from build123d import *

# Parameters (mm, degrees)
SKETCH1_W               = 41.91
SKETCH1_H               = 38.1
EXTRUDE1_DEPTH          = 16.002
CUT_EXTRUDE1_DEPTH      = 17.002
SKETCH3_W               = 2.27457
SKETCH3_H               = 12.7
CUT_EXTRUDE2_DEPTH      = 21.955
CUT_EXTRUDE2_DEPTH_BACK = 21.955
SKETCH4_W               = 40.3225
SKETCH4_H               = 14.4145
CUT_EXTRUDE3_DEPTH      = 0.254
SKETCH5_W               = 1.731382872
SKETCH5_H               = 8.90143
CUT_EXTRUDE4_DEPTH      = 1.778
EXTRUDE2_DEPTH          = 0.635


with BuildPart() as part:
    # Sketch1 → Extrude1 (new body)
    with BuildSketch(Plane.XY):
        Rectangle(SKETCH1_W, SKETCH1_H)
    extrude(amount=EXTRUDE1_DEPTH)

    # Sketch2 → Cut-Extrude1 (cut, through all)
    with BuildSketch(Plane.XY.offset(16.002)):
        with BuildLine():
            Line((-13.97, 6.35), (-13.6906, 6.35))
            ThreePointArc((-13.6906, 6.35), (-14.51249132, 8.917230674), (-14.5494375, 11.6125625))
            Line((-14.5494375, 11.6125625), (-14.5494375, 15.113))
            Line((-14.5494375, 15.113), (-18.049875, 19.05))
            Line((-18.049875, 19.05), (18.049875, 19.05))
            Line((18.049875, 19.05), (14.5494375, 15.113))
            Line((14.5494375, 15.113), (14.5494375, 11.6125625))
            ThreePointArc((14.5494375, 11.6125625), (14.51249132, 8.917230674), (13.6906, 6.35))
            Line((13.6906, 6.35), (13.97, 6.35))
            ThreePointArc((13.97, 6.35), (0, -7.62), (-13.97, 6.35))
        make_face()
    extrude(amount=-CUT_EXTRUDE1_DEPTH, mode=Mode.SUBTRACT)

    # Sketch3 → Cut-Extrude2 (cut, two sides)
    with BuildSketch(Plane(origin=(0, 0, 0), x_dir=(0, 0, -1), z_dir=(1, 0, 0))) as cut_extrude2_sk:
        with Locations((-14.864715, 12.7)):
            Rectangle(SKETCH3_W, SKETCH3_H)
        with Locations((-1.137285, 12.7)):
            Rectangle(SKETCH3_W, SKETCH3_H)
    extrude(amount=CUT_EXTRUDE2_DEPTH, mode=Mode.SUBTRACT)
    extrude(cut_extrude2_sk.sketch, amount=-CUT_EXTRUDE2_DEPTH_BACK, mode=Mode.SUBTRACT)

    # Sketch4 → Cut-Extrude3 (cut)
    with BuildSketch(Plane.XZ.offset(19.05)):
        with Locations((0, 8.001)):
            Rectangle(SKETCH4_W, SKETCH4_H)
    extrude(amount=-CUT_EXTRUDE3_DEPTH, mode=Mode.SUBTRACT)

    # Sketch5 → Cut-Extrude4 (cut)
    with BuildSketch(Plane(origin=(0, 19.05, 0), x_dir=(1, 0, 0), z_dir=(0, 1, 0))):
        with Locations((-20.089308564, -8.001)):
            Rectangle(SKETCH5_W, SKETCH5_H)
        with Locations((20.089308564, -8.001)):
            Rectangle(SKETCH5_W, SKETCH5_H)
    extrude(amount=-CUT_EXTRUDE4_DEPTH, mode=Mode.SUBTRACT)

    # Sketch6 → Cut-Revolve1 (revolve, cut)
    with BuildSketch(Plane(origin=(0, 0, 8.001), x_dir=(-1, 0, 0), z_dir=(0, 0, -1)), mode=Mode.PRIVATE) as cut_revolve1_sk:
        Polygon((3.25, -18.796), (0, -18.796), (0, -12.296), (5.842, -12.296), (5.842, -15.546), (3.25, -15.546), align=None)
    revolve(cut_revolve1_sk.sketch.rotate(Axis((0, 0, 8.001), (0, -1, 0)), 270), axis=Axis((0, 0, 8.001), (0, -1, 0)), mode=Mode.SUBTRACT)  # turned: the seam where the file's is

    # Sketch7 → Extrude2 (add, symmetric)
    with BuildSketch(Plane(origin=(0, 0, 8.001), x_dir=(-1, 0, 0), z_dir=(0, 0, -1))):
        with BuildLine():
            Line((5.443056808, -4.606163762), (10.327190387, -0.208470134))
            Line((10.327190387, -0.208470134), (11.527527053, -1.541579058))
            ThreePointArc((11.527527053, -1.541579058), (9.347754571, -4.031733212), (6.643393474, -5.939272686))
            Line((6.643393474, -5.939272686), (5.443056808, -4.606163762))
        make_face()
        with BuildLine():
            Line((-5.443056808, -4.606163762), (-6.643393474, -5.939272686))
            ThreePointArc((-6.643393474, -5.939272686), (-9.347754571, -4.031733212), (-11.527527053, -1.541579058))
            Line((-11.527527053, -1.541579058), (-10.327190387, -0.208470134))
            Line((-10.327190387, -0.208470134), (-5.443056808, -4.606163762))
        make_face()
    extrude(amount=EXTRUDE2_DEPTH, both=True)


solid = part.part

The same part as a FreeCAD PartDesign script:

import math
import FreeCAD as App
import Part
import Sketcher
from FreeCAD import Vector
Q = App.Units.Quantity

doc = App.newDocument("Part")
body = doc.addObject("PartDesign::Body", "Body")

sketch1 = body.newObject("Sketcher::SketchObject", "Sketch")
sketch1.AttachmentSupport = (doc.getObject("XY_Plane"), [""])
sketch1.MapMode = "FlatFace"
sketch1.addGeometry([
    Part.LineSegment(Vector(-21, 19, 0), Vector(-21, -19, 0)),
    Part.LineSegment(Vector(-21, -19, 0), Vector(21, -19, 0)),
    Part.LineSegment(Vector(21, -19, 0), Vector(21, 19, 0)),
    Part.LineSegment(Vector(21, 19, 0), Vector(-21, 19, 0)),
], False)
sketch1.addConstraint([
    Sketcher.Constraint("Coincident", 0, 2, 1, 1),
    Sketcher.Constraint("Coincident", 1, 2, 2, 1),
    Sketcher.Constraint("Coincident", 2, 2, 3, 1),
    Sketcher.Constraint("Coincident", 3, 2, 0, 1),
    Sketcher.Constraint("Vertical", 0),
    Sketcher.Constraint("Horizontal", 1),
    Sketcher.Constraint("Vertical", 2),
    Sketcher.Constraint("Horizontal", 3),
    Sketcher.Constraint("Symmetric", 0, 2, 2, 2, -1, 1),
    Sketcher.Constraint("DistanceY", 0, 2, 0, 1, Q("1.5 in")),
    Sketcher.Constraint("DistanceX", 1, 1, 1, 2, Q("1.65 in")),
])
pad1 = body.newObject("PartDesign::Pad", "Pad")
pad1.Profile = sketch1
pad1.Length = Q("0.63 in")

sketch2 = body.newObject("Sketcher::SketchObject", "Sketch001")
sketch2.AttachmentSupport = (doc.getObject("XY_Plane"), [""])
sketch2.MapMode = "FlatFace"
sketch2.AttachmentOffset = App.Placement(Vector(0, 0, 0.63 * 25.4), App.Rotation())
sketch2.addGeometry([
    Part.LineSegment(Vector(-13.69, 6.35, 0), Vector(-13.97, 6.35, 0)),
    Part.ArcOfCircle(Part.Circle(Vector(0, 6.35, 0), Vector(0, 0, 1), 13.97), math.radians(180), math.radians(360)),
    Part.LineSegment(Vector(13.97, 6.35, 0), Vector(13.69, 6.35, 0)),
    Part.ArcOfCircle(Part.Circle(Vector(5.5, 10.39, 0), Vector(0, 0, 1), 9.14), math.radians(-26), math.radians(8)),
    Part.LineSegment(Vector(14.55, 11.61, 0), Vector(14.55, 15.11, 0)),
    Part.LineSegment(Vector(14.55, 15.11, 0), Vector(18.05, 19.05, 0)),
    Part.LineSegment(Vector(18.05, 19.05, 0), Vector(-18.05, 19.05, 0)),
    Part.LineSegment(Vector(-18.05, 19.05, 0), Vector(-14.55, 15.11, 0)),
    Part.LineSegment(Vector(-14.55, 15.11, 0), Vector(-14.55, 11.61, 0)),
    Part.ArcOfCircle(Part.Circle(Vector(-5.5, 10.39, 0), Vector(0, 0, 1), 9.14), math.radians(172), math.radians(206)),
], False)
sketch2.addConstraint([
    Sketcher.Constraint("Coincident", 0, 2, 1, 1),
    Sketcher.Constraint("Coincident", 1, 2, 2, 1),
    Sketcher.Constraint("Coincident", 2, 2, 3, 1),
    Sketcher.Constraint("Coincident", 3, 2, 4, 1),
    Sketcher.Constraint("Coincident", 4, 2, 5, 1),
    Sketcher.Constraint("Coincident", 5, 2, 6, 1),
    Sketcher.Constraint("Coincident", 6, 2, 7, 1),
    Sketcher.Constraint("Coincident", 7, 2, 8, 1),
    Sketcher.Constraint("Coincident", 8, 2, 9, 1),
    Sketcher.Constraint("Coincident", 9, 2, 0, 1),
    Sketcher.Constraint("Horizontal", 0),
    Sketcher.Constraint("Horizontal", 2),
    Sketcher.Constraint("Vertical", 4),
    Sketcher.Constraint("Horizontal", 6),
    Sketcher.Constraint("Vertical", 8),
    Sketcher.Constraint("Equal", 3, 9),
    Sketcher.Constraint("Symmetric", 3, 3, 9, 3, -2),
    Sketcher.Constraint("Symmetric", 0, 2, 1, 2, -2),
    Sketcher.Constraint("Symmetric", 4, 2, 7, 2, -2),
    Sketcher.Constraint("Horizontal", 1, 3, 0, 2),
    Sketcher.Constraint("Equal", 5, 7),
    Sketcher.Constraint("Radius", 1, Q("0.55 in")),
    Sketcher.Constraint("DistanceY", 1, 2, 5, 2, Q("0.5 in")),
    Sketcher.Constraint("DistanceX", 0, 2, 0, 1, Q("0.011 in")),
    Sketcher.Constraint("DistanceY", -1, 1, 1, 3, Q("0.25 in")),
    Sketcher.Constraint("DistanceY", -1, 1, 4, 2, Q("0.595 in")),
    Sketcher.Constraint("Radius", 3, 9.136063),
    Sketcher.Constraint("DistanceX", 6, 2, 6, 1, 36.09975),
    Sketcher.Constraint("DistanceY", 4, 1, 4, 2, 3.500438),
    Sketcher.Constraint("DistanceX", 9, 3, 3, 2, 20.045151),
])
pocket1 = body.newObject("PartDesign::Pocket", "Pocket")
pocket1.Profile = sketch2
pocket1.Type = "ThroughAll"

sketch3 = body.newObject("Sketcher::SketchObject", "Sketch002")
sketch3.AttachmentSupport = (doc.getObject("YZ_Plane"), [""])
sketch3.MapMode = "FlatFace"
sketch3.addGeometry([
    Part.LineSegment(Vector(19.1, 16, 0), Vector(6.3, 16, 0)),
    Part.LineSegment(Vector(6.3, 16, 0), Vector(6.3, 13.7, 0)),
    Part.LineSegment(Vector(6.3, 13.7, 0), Vector(19.1, 13.7, 0)),
    Part.LineSegment(Vector(19.1, 13.7, 0), Vector(19.1, 16, 0)),
    Part.LineSegment(Vector(19.1, 2.3, 0), Vector(6.3, 2.3, 0)),
    Part.LineSegment(Vector(6.3, 2.3, 0), Vector(6.3, 0, 0)),
    Part.LineSegment(Vector(6.3, 0, 0), Vector(19.1, 0, 0)),
    Part.LineSegment(Vector(19.1, 0, 0), Vector(19.1, 2.3, 0)),
], False)
sketch3.addConstraint([
    Sketcher.Constraint("Coincident", 0, 2, 1, 1),
    Sketcher.Constraint("Coincident", 1, 2, 2, 1),
    Sketcher.Constraint("Coincident", 2, 2, 3, 1),
    Sketcher.Constraint("Coincident", 3, 2, 0, 1),
    Sketcher.Constraint("Coincident", 4, 2, 5, 1),
    Sketcher.Constraint("Coincident", 5, 2, 6, 1),
    Sketcher.Constraint("Coincident", 6, 2, 7, 1),
    Sketcher.Constraint("Coincident", 7, 2, 4, 1),
    Sketcher.Constraint("Horizontal", 0),
    Sketcher.Constraint("Vertical", 1),
    Sketcher.Constraint("Horizontal", 2),
    Sketcher.Constraint("Vertical", 3),
    Sketcher.Constraint("Horizontal", 4),
    Sketcher.Constraint("Vertical", 5),
    Sketcher.Constraint("Horizontal", 6),
    Sketcher.Constraint("Vertical", 7),
    Sketcher.Constraint("PointOnObject", 5, 2, -1),
    Sketcher.Constraint("Vertical", 1, 2, 4, 2),
    Sketcher.Constraint("Vertical", 3, 2, 6, 2),
    Sketcher.Constraint("Equal", 3, 5),
    Sketcher.Constraint("DistanceX", 0, 2, 0, 1, Q("0.5 in")),
    Sketcher.Constraint("DistanceX", -1, 1, 0, 2, Q("0.25 in")),
    Sketcher.Constraint("DistanceY", -1, 1, 0, 2, Q("0.63 in")),
    Sketcher.Constraint("DistanceY", 4, 2, 1, 2, Q("0.4509 in")),
])
pocket2 = body.newObject("PartDesign::Pocket", "Pocket001")
pocket2.Profile = sketch3
pocket2.Type = "ThroughAll"
pocket2.Midplane = True

sketch4 = body.newObject("Sketcher::SketchObject", "Sketch003")
sketch4.AttachmentSupport = (doc.getObject("XZ_Plane"), [""])
sketch4.MapMode = "FlatFace"
sketch4.AttachmentOffset = App.Placement(Vector(0, 0, 0.75 * 25.4), App.Rotation())
sketch4.addGeometry([
    Part.LineSegment(Vector(-20, 15, 0), Vector(-20, 1, 0)),
    Part.LineSegment(Vector(-20, 1, 0), Vector(20, 1, 0)),
    Part.LineSegment(Vector(20, 1, 0), Vector(20, 15, 0)),
    Part.LineSegment(Vector(20, 15, 0), Vector(-20, 15, 0)),
], False)
sketch4.addConstraint([
    Sketcher.Constraint("Coincident", 0, 2, 1, 1),
    Sketcher.Constraint("Coincident", 1, 2, 2, 1),
    Sketcher.Constraint("Coincident", 2, 2, 3, 1),
    Sketcher.Constraint("Coincident", 3, 2, 0, 1),
    Sketcher.Constraint("Vertical", 0),
    Sketcher.Constraint("Horizontal", 1),
    Sketcher.Constraint("Vertical", 2),
    Sketcher.Constraint("Horizontal", 3),
    Sketcher.Constraint("DistanceX", 1, 1, 1, 2, Q("1.5875 in")),
    Sketcher.Constraint("DistanceY", 0, 2, 0, 1, Q("0.5675 in")),
    Sketcher.Constraint("DistanceY", -1, 1, 0, 2, Q("0.03125 in")),
    Sketcher.Constraint("DistanceX", 0, 2, -1, 1, 20.16125),
])
pocket3 = body.newObject("PartDesign::Pocket", "Pocket002")
pocket3.Profile = sketch4
pocket3.Length = Q("0.01 in")

sketch5 = body.newObject("Sketcher::SketchObject", "Sketch004")
sketch5.AttachmentSupport = (doc.getObject("XZ_Plane"), [""])
sketch5.MapMode = "FlatFace"
sketch5.AttachmentOffset = App.Placement(Vector(0, 0, -0.75 * 25.4), App.Rotation())
sketch5.addGeometry([
    Part.LineSegment(Vector(-21, 3.6, 0), Vector(-21, 12.5, 0)),
    Part.LineSegment(Vector(-21, 12.5, 0), Vector(-19.2, 12.5, 0)),
    Part.LineSegment(Vector(-19.2, 12.5, 0), Vector(-19.2, 3.6, 0)),
    Part.LineSegment(Vector(-19.2, 3.6, 0), Vector(-21, 3.6, 0)),
    Part.LineSegment(Vector(19.2, 3.6, 0), Vector(19.2, 12.5, 0)),
    Part.LineSegment(Vector(19.2, 12.5, 0), Vector(21, 12.5, 0)),
    Part.LineSegment(Vector(21, 12.5, 0), Vector(21, 3.6, 0)),
    Part.LineSegment(Vector(21, 3.6, 0), Vector(19.2, 3.6, 0)),
], False)
sketch5.addConstraint([
    Sketcher.Constraint("Coincident", 0, 2, 1, 1),
    Sketcher.Constraint("Coincident", 1, 2, 2, 1),
    Sketcher.Constraint("Coincident", 2, 2, 3, 1),
    Sketcher.Constraint("Coincident", 3, 2, 0, 1),
    Sketcher.Constraint("Coincident", 4, 2, 5, 1),
    Sketcher.Constraint("Coincident", 5, 2, 6, 1),
    Sketcher.Constraint("Coincident", 6, 2, 7, 1),
    Sketcher.Constraint("Coincident", 7, 2, 4, 1),
    Sketcher.Constraint("Vertical", 0),
    Sketcher.Constraint("Horizontal", 1),
    Sketcher.Constraint("Vertical", 2),
    Sketcher.Constraint("Horizontal", 3),
    Sketcher.Constraint("Vertical", 4),
    Sketcher.Constraint("Horizontal", 5),
    Sketcher.Constraint("Vertical", 6),
    Sketcher.Constraint("Horizontal", 7),
    Sketcher.Constraint("Symmetric", 1, 2, 4, 2, -2),
    Sketcher.Constraint("Symmetric", 3, 2, 6, 2, -2),
    Sketcher.Constraint("DistanceX", 0, 2, 5, 2, Q("1.65 in")),
    Sketcher.Constraint("DistanceY", 0, 1, 0, 2, 8.90143),
    Sketcher.Constraint("DistanceX", 1, 1, 1, 2, 1.731383),
    Sketcher.Constraint("DistanceY", -1, 1, 0, 2, 12.451715),
])
pocket4 = body.newObject("PartDesign::Pocket", "Pocket003")
pocket4.Profile = sketch5
pocket4.Length = Q("0.07 in")
pocket4.Reversed = True

sketch6 = body.newObject("Sketcher::SketchObject", "Sketch005")
sketch6.AttachmentSupport = (doc.getObject("XY_Plane"), [""])
sketch6.MapMode = "FlatFace"
sketch6.AttachmentOffset = App.Placement(Vector(0, 0, 0.315 * 25.4), App.Rotation())
sketch6.addGeometry([
    Part.LineSegment(Vector(0, -18.8, 0), Vector(-3.2, -18.8, 0)),
    Part.LineSegment(Vector(-3.2, -18.8, 0), Vector(-3.2, -15.5, 0)),
    Part.LineSegment(Vector(-3.2, -15.5, 0), Vector(-5.8, -15.5, 0)),
    Part.LineSegment(Vector(-5.8, -15.5, 0), Vector(-5.8, -12.3, 0)),
    Part.LineSegment(Vector(-5.8, -12.3, 0), Vector(0, -12.3, 0)),
    Part.LineSegment(Vector(0, -12.3, 0), Vector(0, -18.8, 0)),
], False)
sketch6.addConstraint([
    Sketcher.Constraint("Coincident", 0, 2, 1, 1),
    Sketcher.Constraint("Coincident", 1, 2, 2, 1),
    Sketcher.Constraint("Coincident", 2, 2, 3, 1),
    Sketcher.Constraint("Coincident", 3, 2, 4, 1),
    Sketcher.Constraint("Coincident", 4, 2, 5, 1),
    Sketcher.Constraint("Coincident", 5, 2, 0, 1),
    Sketcher.Constraint("Horizontal", 0),
    Sketcher.Constraint("Vertical", 1),
    Sketcher.Constraint("Horizontal", 2),
    Sketcher.Constraint("Vertical", 3),
    Sketcher.Constraint("Horizontal", 4),
    Sketcher.Constraint("Vertical", 5),
    Sketcher.Constraint("PointOnObject", 4, 2, -2),
    Sketcher.Constraint("Equal", 0, 1),
    Sketcher.Constraint("Equal", 1, 3),
    Sketcher.Constraint("DistanceX", 4, 1, 4, 2, Q("0.23 in")),
    Sketcher.Constraint("DistanceY", 0, 2, -1, 1, Q("0.74 in")),
    Sketcher.Constraint("DistanceX", 0, 2, 0, 1, 3.25),
])
groove = body.newObject("PartDesign::Groove", "Groove")
groove.Profile = sketch6
groove.ReferenceAxis = (sketch6, ["V_Axis"])
groove.Angle = 360

sketch7 = body.newObject("Sketcher::SketchObject", "Sketch006")
sketch7.AttachmentSupport = (doc.getObject("XY_Plane"), [""])
sketch7.MapMode = "FlatFace"
sketch7.AttachmentOffset = App.Placement(Vector(0, 0, 0.315 * 25.4), App.Rotation())
sketch7.addGeometry([
    Part.LineSegment(Vector(-10.3, -0.2, 0), Vector(-5.4, -4.6, 0)),
    Part.LineSegment(Vector(-5.4, -4.6, 0), Vector(-6.6, -5.9, 0)),
    Part.ArcOfCircle(Part.Circle(Vector(0, 6.3, 0), Vector(0, 0, 1), 14), math.radians(-146), math.radians(-118)),
    Part.LineSegment(Vector(-11.5, -1.5, 0), Vector(-10.3, -0.2, 0)),
    Part.LineSegment(Vector(6.6, -5.9, 0), Vector(5.4, -4.6, 0)),
    Part.LineSegment(Vector(5.4, -4.6, 0), Vector(10.3, -0.2, 0)),
    Part.LineSegment(Vector(10.3, -0.2, 0), Vector(11.5, -1.5, 0)),
    Part.ArcOfCircle(Part.Circle(Vector(0, 6.3, 0), Vector(0, 0, 1), 14), math.radians(-62), math.radians(-34)),
], False)
sketch7.addConstraint([
    Sketcher.Constraint("Coincident", 0, 2, 1, 1),
    Sketcher.Constraint("Coincident", 1, 2, 2, 2),
    Sketcher.Constraint("Coincident", 2, 1, 3, 1),
    Sketcher.Constraint("Coincident", 3, 2, 0, 1),
    Sketcher.Constraint("Coincident", 4, 2, 5, 1),
    Sketcher.Constraint("Coincident", 5, 2, 6, 1),
    Sketcher.Constraint("Coincident", 6, 2, 7, 2),
    Sketcher.Constraint("Coincident", 7, 1, 4, 1),
    Sketcher.Constraint("Coincident", 7, 3, 2, 3),
    Sketcher.Constraint("Equal", 2, 7),
    Sketcher.Constraint("Symmetric", 0, 2, 4, 2, -2),
    Sketcher.Constraint("Symmetric", 3, 2, 5, 2, -2),
    Sketcher.Constraint("Symmetric", 2, 1, 6, 2, -2),
    Sketcher.Constraint("Perpendicular", 0, 1),
    Sketcher.Constraint("Parallel", 1, 3),
    Sketcher.Constraint("Perpendicular", 4, 5),
    Sketcher.Constraint("Equal", 1, 3),
    Sketcher.Constraint("Radius", 2, Q("0.55 in")),
    Sketcher.Constraint("Angle", 0, Q("-42 deg")),
    Sketcher.Constraint("DistanceY", -1, 1, 2, 3, Q("0.25 in")),
    Sketcher.Constraint("Distance", 0, 6.57225),
    Sketcher.Constraint("DistanceX", 3, 2, -1, 1, 10.32719),
])
pad2 = body.newObject("PartDesign::Pad", "Pad001")
pad2.Profile = sketch7
pad2.Length = Q("0.05 in")
pad2.Midplane = True

doc.recompute()
